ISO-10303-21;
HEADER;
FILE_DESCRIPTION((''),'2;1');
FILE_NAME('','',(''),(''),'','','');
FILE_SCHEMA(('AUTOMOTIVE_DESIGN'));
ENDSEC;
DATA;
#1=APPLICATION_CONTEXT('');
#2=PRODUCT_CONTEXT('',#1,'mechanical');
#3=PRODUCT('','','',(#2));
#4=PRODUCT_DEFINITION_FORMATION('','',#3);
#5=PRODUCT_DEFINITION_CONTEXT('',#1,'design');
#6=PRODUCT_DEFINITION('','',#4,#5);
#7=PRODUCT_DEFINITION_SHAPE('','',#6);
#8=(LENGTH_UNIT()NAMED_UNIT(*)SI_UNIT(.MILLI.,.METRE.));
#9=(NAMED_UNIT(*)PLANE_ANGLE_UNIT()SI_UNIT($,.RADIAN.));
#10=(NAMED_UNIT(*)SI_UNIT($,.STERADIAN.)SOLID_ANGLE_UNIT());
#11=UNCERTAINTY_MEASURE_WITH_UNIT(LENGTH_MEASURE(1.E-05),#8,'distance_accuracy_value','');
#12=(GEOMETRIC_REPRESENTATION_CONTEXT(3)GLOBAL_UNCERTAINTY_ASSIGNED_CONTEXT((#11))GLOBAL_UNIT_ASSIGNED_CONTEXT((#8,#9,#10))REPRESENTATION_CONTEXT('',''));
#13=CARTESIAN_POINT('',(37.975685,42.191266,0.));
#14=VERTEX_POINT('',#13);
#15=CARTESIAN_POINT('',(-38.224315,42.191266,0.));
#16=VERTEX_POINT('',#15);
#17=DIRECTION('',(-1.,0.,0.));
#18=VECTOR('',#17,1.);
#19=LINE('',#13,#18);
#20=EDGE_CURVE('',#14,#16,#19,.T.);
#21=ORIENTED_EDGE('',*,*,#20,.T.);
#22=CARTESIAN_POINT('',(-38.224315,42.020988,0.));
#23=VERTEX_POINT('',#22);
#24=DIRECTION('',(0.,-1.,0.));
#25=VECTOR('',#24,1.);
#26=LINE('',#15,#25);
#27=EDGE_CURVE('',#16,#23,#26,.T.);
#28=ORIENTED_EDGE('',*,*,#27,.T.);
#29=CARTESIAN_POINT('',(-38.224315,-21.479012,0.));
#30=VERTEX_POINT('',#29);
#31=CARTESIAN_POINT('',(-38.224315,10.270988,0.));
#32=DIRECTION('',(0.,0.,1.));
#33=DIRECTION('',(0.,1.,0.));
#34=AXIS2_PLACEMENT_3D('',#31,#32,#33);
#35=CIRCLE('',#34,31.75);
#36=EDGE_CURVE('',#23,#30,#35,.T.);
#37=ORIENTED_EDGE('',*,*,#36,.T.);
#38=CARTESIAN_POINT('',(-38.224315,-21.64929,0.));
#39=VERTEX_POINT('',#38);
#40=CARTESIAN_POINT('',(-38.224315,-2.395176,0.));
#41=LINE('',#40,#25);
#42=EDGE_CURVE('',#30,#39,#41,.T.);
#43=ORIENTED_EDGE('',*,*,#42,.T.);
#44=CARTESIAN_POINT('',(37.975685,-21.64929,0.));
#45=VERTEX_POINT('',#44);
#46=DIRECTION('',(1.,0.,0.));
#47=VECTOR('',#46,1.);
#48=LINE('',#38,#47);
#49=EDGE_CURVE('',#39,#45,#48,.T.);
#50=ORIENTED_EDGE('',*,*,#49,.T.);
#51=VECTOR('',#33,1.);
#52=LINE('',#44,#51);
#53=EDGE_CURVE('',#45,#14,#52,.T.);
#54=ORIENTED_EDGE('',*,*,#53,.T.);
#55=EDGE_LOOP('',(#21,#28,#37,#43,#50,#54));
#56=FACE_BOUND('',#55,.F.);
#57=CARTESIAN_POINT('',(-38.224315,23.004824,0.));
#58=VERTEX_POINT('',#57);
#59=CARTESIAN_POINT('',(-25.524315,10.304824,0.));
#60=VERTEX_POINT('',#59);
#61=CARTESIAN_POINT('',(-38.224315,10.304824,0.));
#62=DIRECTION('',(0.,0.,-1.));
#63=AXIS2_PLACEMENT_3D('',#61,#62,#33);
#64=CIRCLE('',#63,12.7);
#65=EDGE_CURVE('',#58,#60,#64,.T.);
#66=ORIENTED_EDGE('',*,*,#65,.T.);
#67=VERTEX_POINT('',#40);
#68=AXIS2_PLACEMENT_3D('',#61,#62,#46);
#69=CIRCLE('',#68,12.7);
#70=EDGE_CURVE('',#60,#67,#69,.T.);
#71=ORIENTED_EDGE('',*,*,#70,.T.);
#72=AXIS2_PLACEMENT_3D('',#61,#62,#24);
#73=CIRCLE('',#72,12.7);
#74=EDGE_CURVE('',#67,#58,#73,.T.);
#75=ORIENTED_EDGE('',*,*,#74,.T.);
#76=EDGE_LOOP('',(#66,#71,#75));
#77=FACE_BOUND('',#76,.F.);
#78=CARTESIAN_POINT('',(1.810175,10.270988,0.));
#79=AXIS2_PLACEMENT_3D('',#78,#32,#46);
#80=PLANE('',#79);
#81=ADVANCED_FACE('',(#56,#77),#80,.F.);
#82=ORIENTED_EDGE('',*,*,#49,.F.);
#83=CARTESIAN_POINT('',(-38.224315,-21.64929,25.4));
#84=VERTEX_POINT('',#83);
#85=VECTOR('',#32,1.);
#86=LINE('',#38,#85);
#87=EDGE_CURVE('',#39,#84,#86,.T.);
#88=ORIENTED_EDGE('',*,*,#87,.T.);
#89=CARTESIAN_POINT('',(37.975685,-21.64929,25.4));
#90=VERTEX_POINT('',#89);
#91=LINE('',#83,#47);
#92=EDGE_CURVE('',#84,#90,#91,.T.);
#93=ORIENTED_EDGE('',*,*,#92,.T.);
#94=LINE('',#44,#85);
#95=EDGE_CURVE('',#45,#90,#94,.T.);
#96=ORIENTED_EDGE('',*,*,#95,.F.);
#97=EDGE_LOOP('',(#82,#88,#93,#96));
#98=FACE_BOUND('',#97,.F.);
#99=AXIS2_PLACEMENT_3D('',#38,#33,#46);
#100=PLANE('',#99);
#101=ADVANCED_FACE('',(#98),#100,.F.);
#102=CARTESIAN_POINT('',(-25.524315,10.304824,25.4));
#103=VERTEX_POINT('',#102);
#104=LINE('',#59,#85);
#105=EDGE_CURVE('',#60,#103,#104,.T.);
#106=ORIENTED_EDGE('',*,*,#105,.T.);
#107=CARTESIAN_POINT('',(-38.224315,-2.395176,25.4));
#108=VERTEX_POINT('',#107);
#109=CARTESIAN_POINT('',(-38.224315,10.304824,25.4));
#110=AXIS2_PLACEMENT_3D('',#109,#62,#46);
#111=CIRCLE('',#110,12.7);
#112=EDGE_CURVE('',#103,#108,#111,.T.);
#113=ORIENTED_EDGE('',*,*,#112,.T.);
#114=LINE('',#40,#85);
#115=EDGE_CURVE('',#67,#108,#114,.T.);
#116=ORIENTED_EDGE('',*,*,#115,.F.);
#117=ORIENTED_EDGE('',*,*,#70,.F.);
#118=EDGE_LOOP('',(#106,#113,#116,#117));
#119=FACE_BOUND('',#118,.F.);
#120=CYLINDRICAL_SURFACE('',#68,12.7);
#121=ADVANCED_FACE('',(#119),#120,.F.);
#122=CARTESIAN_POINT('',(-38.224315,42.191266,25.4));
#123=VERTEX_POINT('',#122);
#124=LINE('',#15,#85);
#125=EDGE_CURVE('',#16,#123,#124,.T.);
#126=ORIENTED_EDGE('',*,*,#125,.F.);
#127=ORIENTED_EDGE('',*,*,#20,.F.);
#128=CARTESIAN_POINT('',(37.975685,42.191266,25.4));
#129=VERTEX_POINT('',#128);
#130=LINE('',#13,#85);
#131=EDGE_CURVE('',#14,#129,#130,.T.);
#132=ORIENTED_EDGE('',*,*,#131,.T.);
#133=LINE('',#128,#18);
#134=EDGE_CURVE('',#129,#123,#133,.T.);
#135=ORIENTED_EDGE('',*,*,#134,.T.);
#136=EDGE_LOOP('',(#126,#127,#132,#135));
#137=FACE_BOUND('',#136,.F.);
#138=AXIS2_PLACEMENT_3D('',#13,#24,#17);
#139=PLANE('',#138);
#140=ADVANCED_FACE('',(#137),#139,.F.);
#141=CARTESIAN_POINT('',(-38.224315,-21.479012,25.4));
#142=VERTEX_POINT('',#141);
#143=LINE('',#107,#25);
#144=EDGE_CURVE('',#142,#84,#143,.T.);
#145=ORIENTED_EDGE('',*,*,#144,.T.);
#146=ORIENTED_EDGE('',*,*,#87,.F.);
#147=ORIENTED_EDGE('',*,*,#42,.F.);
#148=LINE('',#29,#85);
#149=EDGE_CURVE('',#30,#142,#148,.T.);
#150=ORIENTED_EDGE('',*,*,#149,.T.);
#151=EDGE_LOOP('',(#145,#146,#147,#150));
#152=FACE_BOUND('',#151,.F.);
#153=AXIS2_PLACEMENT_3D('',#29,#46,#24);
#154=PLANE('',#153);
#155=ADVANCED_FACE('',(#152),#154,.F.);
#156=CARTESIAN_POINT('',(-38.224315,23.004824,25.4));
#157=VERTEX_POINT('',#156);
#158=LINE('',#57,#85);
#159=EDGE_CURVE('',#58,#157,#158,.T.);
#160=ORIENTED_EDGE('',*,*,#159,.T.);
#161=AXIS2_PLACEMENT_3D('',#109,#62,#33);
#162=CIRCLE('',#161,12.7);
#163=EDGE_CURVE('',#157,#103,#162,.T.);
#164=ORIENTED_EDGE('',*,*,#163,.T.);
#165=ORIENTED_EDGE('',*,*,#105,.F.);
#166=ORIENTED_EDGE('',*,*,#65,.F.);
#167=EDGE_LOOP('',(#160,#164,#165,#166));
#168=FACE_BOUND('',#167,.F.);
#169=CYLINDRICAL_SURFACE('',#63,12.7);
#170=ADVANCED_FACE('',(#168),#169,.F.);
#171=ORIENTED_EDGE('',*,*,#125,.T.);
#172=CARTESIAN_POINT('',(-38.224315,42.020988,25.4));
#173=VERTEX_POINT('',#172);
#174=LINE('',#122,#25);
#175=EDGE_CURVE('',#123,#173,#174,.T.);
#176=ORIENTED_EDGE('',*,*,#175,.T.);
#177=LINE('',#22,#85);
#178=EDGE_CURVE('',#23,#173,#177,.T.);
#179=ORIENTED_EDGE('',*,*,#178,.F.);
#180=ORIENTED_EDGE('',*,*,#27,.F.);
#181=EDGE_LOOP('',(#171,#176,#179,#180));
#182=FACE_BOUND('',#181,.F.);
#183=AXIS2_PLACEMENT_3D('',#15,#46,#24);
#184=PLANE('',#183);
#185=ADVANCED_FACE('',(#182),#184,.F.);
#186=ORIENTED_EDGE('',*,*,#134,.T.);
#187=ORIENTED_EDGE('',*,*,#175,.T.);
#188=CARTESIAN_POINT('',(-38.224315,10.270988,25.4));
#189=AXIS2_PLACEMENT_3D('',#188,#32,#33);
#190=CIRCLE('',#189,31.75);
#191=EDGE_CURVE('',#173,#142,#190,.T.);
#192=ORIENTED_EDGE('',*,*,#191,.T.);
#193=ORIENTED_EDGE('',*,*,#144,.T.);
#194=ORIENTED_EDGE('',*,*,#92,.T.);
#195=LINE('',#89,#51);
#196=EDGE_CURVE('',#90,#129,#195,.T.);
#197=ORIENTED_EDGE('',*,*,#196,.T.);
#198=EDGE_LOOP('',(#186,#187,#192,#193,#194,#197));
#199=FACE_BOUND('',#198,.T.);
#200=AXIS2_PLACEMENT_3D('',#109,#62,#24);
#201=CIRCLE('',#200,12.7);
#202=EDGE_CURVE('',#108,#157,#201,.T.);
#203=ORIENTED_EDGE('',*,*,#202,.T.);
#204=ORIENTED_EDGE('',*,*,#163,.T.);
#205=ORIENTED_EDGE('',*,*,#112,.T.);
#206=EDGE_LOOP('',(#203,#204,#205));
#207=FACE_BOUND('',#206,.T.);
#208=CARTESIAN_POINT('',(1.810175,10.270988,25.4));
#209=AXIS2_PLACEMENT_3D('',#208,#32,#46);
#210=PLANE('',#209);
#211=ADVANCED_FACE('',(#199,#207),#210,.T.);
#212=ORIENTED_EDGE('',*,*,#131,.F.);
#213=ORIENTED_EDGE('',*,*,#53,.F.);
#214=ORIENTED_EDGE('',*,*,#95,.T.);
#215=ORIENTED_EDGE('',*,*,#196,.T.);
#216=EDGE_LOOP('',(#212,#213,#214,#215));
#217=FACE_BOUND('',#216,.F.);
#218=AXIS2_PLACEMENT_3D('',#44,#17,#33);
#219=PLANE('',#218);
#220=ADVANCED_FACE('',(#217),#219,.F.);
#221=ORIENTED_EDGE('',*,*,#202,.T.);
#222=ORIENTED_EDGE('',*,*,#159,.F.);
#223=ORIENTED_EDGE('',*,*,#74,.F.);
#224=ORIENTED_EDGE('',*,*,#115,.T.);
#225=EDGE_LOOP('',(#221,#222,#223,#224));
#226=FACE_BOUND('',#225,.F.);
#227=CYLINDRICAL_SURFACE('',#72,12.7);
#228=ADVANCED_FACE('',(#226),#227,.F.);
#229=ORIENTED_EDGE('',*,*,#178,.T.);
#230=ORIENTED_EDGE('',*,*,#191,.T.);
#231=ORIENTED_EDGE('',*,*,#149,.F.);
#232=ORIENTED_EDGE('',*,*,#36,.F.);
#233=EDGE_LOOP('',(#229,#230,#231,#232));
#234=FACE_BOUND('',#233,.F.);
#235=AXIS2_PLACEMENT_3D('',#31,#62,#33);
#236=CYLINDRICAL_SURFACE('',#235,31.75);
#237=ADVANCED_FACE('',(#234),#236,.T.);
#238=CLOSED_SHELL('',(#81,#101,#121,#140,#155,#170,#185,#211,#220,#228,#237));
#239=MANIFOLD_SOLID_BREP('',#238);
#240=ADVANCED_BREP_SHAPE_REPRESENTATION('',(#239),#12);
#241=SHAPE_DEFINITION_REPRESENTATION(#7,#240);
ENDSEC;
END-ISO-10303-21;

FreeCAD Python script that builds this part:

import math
import FreeCAD as App
import Part
import Sketcher
Q = App.Units.Quantity

doc = App.newDocument("Part")
body = doc.addObject("PartDesign::Body", "Body")

# Sketch on XY plane
sketch1 = body.newObject("Sketcher::SketchObject", "Sketch")
sketch1.AttachmentSupport = (doc.getObject("XY_Plane"), [""])
sketch1.MapMode = "FlatFace"
sketch1.addGeometry(Part.LineSegment(App.Vector(-38.224315, -21.64929, 0), App.Vector(37.975685, -21.64929, 0)), False)
sketch1.addGeometry(Part.LineSegment(App.Vector(37.975685, -21.64929, 0), App.Vector(37.975685, 42.191266, 0)), False)
sketch1.addGeometry(Part.LineSegment(App.Vector(37.975685, 42.191266, 0), App.Vector(-38.224315, 42.191266, 0)), False)
sketch1.addGeometry(Part.LineSegment(App.Vector(-38.224315, 42.191266, 0), App.Vector(-38.224315, 42.020988, 0)), False)
sketch1.addGeometry(Part.ArcOfCircle(Part.Circle(App.Vector(-38.224315, 10.270988, 0), App.Vector(0, 0, 1), 31.75), math.radians(90), math.radians(270)), False)
sketch1.addGeometry(Part.LineSegment(App.Vector(-38.224315, -21.479012, 0), App.Vector(-38.224315, -21.64929, 0)), False)
sketch1.addGeometry(Part.ArcOfCircle(Part.Circle(App.Vector(-38.224315, 10.304824, 0), App.Vector(0, 0, 1), 12.7), math.radians(0), math.radians(90)), False)
sketch1.addGeometry(Part.ArcOfCircle(Part.Circle(App.Vector(-38.224315, 10.304824, 0), App.Vector(0, 0, 1), 12.7), math.radians(-90), math.radians(0)), False)
sketch1.addGeometry(Part.ArcOfCircle(Part.Circle(App.Vector(-38.224315, 10.304824, 0), App.Vector(0, 0, 1), 12.7), math.radians(90), math.radians(270)), False)
sketch1.addConstraint(Sketcher.Constraint("Coincident", 0, 2, 1, 1))
sketch1.addConstraint(Sketcher.Constraint("Coincident", 1, 2, 2, 1))
sketch1.addConstraint(Sketcher.Constraint("Coincident", 2, 2, 3, 1))
sketch1.addConstraint(Sketcher.Constraint("Coincident", 3, 2, 4, 1))
sketch1.addConstraint(Sketcher.Constraint("Coincident", 4, 2, 5, 1))
sketch1.addConstraint(Sketcher.Constraint("Coincident", 5, 2, 0, 1))
sketch1.addConstraint(Sketcher.Constraint("Tangent", 6, 1, 7, 2))
sketch1.addConstraint(Sketcher.Constraint("Tangent", 7, 1, 8, 2))
sketch1.addConstraint(Sketcher.Constraint("Tangent", 8, 1, 6, 2))
sketch1.addConstraint(Sketcher.Constraint("Horizontal", 0))
sketch1.addConstraint(Sketcher.Constraint("Vertical", 1))
sketch1.addConstraint(Sketcher.Constraint("Horizontal", 2))
sketch1.addConstraint(Sketcher.Constraint("Vertical", 3))
sketch1.addConstraint(Sketcher.Constraint("Vertical", 5))
sketch1.addConstraint(Sketcher.Constraint("Horizontal", 8, 3, 6, 1))
sketch1.addConstraint(Sketcher.Constraint("Vertical", 4, 3, 6, 3))
sketch1.addConstraint(Sketcher.Constraint("Vertical", 8, 3, 2, 2))
sketch1.addConstraint(Sketcher.Constraint("Vertical", 3, 2, 4, 2))
sketch1.addConstraint(Sketcher.Constraint("Vertical", 5, 2, 7, 1))
sketch1.addConstraint(Sketcher.Constraint("Vertical", 7, 1, 8, 1))
sketch1.addConstraint(Sketcher.Constraint("Equal", 3, 5))
sketch1.addConstraint(Sketcher.Constraint("Radius", 6, Q("0.5 in")))
sketch1.addConstraint(Sketcher.Constraint("DistanceX", 0, 1, 0, 2, Q("3 in")))
sketch1.addConstraint(Sketcher.Constraint("Radius", 4, Q("1.25 in")))
sketch1.addConstraint(Sketcher.Constraint("DistanceY", 3, 2, 3, 1, Q("0.170278 mm")))
sketch1.addConstraint(Sketcher.Constraint("DistanceY", -1, 1, 4, 3, Q("10.270988 mm")))
sketch1.addConstraint(Sketcher.Constraint("DistanceX", 4, 3, -1, 1, Q("38.224315 mm")))
sketch1.addConstraint(Sketcher.Constraint("DistanceY", -1, 1, 6, 3, Q("10.304824 mm")))
pad1 = body.newObject("PartDesign::Pad", "Pad")
pad1.Profile = sketch1
pad1.Length = Q("1 in")

doc.recompute()
